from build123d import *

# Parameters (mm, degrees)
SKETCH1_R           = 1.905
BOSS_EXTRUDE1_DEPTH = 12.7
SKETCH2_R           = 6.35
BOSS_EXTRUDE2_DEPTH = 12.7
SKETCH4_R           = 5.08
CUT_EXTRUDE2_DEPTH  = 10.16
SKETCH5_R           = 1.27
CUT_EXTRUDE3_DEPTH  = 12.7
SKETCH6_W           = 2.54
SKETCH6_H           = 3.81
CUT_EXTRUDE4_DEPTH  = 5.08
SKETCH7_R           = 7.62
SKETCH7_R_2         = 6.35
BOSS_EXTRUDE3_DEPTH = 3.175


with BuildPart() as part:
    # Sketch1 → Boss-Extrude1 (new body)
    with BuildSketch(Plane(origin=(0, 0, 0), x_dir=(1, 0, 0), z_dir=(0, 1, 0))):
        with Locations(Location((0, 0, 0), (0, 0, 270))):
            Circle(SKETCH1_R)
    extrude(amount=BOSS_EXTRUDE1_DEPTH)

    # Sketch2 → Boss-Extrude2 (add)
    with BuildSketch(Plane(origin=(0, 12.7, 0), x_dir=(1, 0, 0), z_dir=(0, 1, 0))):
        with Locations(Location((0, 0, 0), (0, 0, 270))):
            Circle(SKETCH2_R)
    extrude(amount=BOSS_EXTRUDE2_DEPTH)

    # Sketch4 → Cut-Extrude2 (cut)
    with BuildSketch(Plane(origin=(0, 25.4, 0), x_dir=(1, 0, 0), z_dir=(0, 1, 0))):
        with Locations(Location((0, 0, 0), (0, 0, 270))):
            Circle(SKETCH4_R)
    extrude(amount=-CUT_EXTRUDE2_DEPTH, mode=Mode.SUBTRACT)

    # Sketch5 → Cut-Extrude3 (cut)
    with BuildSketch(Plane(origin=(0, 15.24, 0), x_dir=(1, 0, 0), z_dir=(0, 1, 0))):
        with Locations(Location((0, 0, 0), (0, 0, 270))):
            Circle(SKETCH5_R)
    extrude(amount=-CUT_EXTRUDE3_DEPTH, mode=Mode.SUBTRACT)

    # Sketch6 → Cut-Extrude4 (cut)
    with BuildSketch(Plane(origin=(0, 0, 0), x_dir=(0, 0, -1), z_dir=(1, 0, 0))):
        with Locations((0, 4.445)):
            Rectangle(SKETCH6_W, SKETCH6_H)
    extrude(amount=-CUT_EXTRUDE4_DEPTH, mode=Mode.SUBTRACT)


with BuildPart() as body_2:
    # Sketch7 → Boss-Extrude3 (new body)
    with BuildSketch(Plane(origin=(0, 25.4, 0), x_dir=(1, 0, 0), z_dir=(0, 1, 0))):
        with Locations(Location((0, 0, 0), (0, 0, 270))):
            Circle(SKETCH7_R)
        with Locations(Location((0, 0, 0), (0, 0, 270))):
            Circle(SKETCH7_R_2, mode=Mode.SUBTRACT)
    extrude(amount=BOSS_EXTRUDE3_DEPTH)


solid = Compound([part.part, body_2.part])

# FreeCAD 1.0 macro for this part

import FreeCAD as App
import Part
import Sketcher
from FreeCAD import Vector
Q = App.Units.Quantity


def add_polygon(sketch, points):
    """Adds a closed chain of lines whose ends are joined by coincident constraints."""
    first, n = sketch.GeometryCount, len(points)
    for a, b in zip(points, points[1:] + points[:1]):
        sketch.addGeometry(Part.LineSegment(App.Vector(*a, 0), App.Vector(*b, 0)), False)
    for i in range(n):
        sketch.addConstraint(Sketcher.Constraint("Coincident", first + i, 2, first + (i + 1) % n, 1))

doc = App.newDocument("Part")
body = doc.addObject("PartDesign::Body", "Body")

# Sketch on XZ plane
sketch1 = body.newObject("Sketcher::SketchObject", "Sketch")
sketch1.AttachmentSupport = (doc.getObject("XZ_Plane"), [""])
sketch1.MapMode = "FlatFace"
sketch1.addGeometry(Part.Circle(Vector(0, 0, 0), Vector(0, 0, 1), 1.905), False)
sketch1.addConstraint(Sketcher.Constraint("Coincident", 0, 3, -1, 1))
sketch1.addConstraint(Sketcher.Constraint("Diameter", 0, Q("0.15 in")))
pad1 = body.newObject("PartDesign::Pad", "Pad")
pad1.Profile = sketch1
pad1.Length = Q("0.5 in")
pad1.Reversed = True

# Sketch on XZ plane
sketch2 = body.newObject("Sketcher::SketchObject", "Sketch001")
sketch2.AttachmentSupport = (doc.getObject("XZ_Plane"), [""])
sketch2.MapMode = "FlatFace"
sketch2.AttachmentOffset = App.Placement(Vector(0, 0, -0.5 * 25.4), App.Rotation())
sketch2.addGeometry(Part.Circle(Vector(0, 0, 0), Vector(0, 0, 1), 6.35), False)
sketch2.addConstraint(Sketcher.Constraint("Coincident", 0, 3, -1, 1))
sketch2.addConstraint(Sketcher.Constraint("Diameter", 0, Q("0.5 in")))
pad2 = body.newObject("PartDesign::Pad", "Pad001")
pad2.Profile = sketch2
pad2.Length = Q("0.5 in")
pad2.Reversed = True

# Sketch on XZ plane
sketch3 = body.newObject("Sketcher::SketchObject", "Sketch002")
sketch3.AttachmentSupport = (doc.getObject("XZ_Plane"), [""])
sketch3.MapMode = "FlatFace"
sketch3.AttachmentOffset = App.Placement(Vector(0, 0, -1 * 25.4), App.Rotation())
sketch3.addGeometry(Part.Circle(Vector(0, 0, 0), Vector(0, 0, 1), 5.08), False)
sketch3.addConstraint(Sketcher.Constraint("Coincident", 0, 3, -1, 1))
sketch3.addConstraint(Sketcher.Constraint("Diameter", 0, Q("0.4 in")))
pocket1 = body.newObject("PartDesign::Pocket", "Pocket")
pocket1.Profile = sketch3
pocket1.Length = Q("0.4 in")
pocket1.Reversed = True

# Sketch on XZ plane
sketch4 = body.newObject("Sketcher::SketchObject", "Sketch003")
sketch4.AttachmentSupport = (doc.getObject("XZ_Plane"), [""])
sketch4.MapMode = "FlatFace"
sketch4.AttachmentOffset = App.Placement(Vector(0, 0, -0.6 * 25.4), App.Rotation())
sketch4.addGeometry(Part.Circle(Vector(0, 0, 0), Vector(0, 0, 1), 1.27), False)
sketch4.addConstraint(Sketcher.Constraint("Coincident", 0, 3, -1, 1))
sketch4.addConstraint(Sketcher.Constraint("Diameter", 0, Q("0.1 in")))
pocket2 = body.newObject("PartDesign::Pocket", "Pocket001")
pocket2.Profile = sketch4
pocket2.Length = Q("0.5 in")
pocket2.Reversed = True

# Sketch on YZ plane
sketch5 = body.newObject("Sketcher::SketchObject", "Sketch004")
sketch5.AttachmentSupport = (doc.getObject("YZ_Plane"), [""])
sketch5.MapMode = "FlatFace"
add_polygon(sketch5, [(6.35, 1.27), (2.54, 1.27), (2.54, -1.27), (6.35, -1.27)])  # lines 0-3
sketch5.addConstraint(Sketcher.Constraint("Horizontal", 0))
sketch5.addConstraint(Sketcher.Constraint("Vertical", 1))
sketch5.addConstraint(Sketcher.Constraint("Horizontal", 2))
sketch5.addConstraint(Sketcher.Constraint("Vertical", 3))
sketch5.addConstraint(Sketcher.Constraint("DistanceY", 1, 2, 1, 1, Q("0.1 in")))
sketch5.addConstraint(Sketcher.Constraint("DistanceX", 0, 2, 0, 1, Q("0.15 in")))
sketch5.addConstraint(Sketcher.Constraint("DistanceX", -1, 1, 0, 2, Q("0.1 in")))
sketch5.addConstraint(Sketcher.Constraint("DistanceY", -1, 1, 0, 2, Q("0.05 in")))
pocket3 = body.newObject("PartDesign::Pocket", "Pocket002")
pocket3.Profile = sketch5
pocket3.Length = Q("0.2 in")
body2 = doc.addObject("PartDesign::Body", "Body001")

# Sketch on XZ plane
sketch6 = body2.newObject("Sketcher::SketchObject", "Sketch005")
sketch6.AttachmentSupport = (doc.getObject("XZ_Plane001"), [""])
sketch6.MapMode = "FlatFace"
sketch6.AttachmentOffset = App.Placement(Vector(0, 0, -1 * 25.4), App.Rotation())
sketch6.addGeometry(Part.Circle(Vector(0, 0, 0), Vector(0, 0, 1), 7.62), False)
sketch6.addGeometry(Part.Circle(Vector(0, 0, 0), Vector(0, 0, 1), 6.35), False)
sketch6.addConstraint(Sketcher.Constraint("Coincident", 0, 3, -1, 1))
sketch6.addConstraint(Sketcher.Constraint("Coincident", 1, 3, -1, 1))
sketch6.addConstraint(Sketcher.Constraint("Diameter", 0, Q("0.6 in")))
sketch6.addConstraint(Sketcher.Constraint("Diameter", 1, Q("0.5 in")))
pad3 = body2.newObject("PartDesign::Pad", "Pad002")
pad3.Profile = sketch6
pad3.Length = Q("0.125 in")
pad3.Reversed = True

doc.recompute()
